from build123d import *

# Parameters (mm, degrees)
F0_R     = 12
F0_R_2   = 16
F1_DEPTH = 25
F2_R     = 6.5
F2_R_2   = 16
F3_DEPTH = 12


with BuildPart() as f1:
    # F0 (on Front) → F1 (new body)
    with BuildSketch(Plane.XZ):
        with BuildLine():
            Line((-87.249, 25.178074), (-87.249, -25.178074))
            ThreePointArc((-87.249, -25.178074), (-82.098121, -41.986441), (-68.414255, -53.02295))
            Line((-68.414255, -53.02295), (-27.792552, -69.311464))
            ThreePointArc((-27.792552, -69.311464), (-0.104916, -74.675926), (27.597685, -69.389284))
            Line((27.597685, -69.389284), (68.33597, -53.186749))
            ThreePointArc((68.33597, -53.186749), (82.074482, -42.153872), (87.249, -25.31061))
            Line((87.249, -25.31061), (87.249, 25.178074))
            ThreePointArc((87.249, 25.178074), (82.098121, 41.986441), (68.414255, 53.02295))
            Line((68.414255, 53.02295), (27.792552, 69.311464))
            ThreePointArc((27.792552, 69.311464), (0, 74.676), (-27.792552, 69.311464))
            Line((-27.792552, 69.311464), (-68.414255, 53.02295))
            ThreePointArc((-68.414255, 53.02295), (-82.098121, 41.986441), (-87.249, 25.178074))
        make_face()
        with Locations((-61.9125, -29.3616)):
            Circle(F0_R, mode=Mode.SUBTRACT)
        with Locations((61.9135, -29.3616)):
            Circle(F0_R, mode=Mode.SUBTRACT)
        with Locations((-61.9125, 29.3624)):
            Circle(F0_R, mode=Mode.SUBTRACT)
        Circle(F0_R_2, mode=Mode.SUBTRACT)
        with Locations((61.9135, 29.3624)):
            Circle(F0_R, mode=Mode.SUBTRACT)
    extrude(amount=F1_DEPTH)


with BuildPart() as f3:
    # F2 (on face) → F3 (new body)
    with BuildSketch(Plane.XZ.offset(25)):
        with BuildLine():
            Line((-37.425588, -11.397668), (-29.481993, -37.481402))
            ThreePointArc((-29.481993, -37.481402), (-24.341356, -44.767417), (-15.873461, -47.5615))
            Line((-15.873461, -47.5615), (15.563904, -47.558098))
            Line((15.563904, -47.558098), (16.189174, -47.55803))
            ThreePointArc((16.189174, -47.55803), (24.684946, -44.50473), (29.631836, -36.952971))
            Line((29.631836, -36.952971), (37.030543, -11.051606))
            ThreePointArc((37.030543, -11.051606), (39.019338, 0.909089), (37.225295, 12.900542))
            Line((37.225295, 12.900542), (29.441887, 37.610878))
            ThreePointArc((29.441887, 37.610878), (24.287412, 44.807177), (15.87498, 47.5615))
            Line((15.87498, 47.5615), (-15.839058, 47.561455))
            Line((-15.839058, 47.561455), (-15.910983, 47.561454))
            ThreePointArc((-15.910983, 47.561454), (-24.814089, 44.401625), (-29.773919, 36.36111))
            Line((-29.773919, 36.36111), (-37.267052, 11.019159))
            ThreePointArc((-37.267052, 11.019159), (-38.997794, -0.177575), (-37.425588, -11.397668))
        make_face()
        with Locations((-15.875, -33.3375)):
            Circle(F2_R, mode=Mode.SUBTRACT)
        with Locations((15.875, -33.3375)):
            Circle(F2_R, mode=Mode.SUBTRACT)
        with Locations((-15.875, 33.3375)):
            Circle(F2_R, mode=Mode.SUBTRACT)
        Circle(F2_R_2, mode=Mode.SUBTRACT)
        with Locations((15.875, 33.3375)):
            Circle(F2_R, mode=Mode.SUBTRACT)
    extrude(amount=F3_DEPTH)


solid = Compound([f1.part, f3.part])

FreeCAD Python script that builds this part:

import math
import FreeCAD as App
import Part
import Sketcher

doc = App.newDocument("Part")
body = doc.addObject("PartDesign::Body", "Body")

sketch1 = body.newObject("Sketcher::SketchObject", "Sketch")
sketch1.AttachmentSupport = (doc.getObject("XZ_Plane"), [""])
sketch1.MapMode = "FlatFace"
sketch1.addGeometry([
    Part.LineSegment(App.Vector(-87, 25, 0), App.Vector(-87, -25, 0)),
    Part.ArcOfCircle(Part.Circle(App.Vector(-57, -25, 0), App.Vector(0, 0, 1), 30), math.radians(180), math.radians(248)),
    Part.LineSegment(App.Vector(-68, -53, 0), App.Vector(-28, -69, 0)),
    Part.ArcOfCircle(Part.Circle(App.Vector(0, 0, 0), App.Vector(0, 0, 1), 75), math.radians(-112), math.radians(-68)),
    Part.LineSegment(App.Vector(28, -69, 0), App.Vector(68, -53, 0)),
    Part.ArcOfCircle(Part.Circle(App.Vector(57, -25, 0), App.Vector(0, 0, 1), 30), math.radians(-68), math.radians(0)),
    Part.LineSegment(App.Vector(87, -25, 0), App.Vector(87, 25, 0)),
    Part.ArcOfCircle(Part.Circle(App.Vector(57, 25, 0), App.Vector(0, 0, 1), 30), math.radians(0), math.radians(68)),
    Part.LineSegment(App.Vector(68, 53, 0), App.Vector(28, 69, 0)),
    Part.ArcOfCircle(Part.Circle(App.Vector(0, 0, 0), App.Vector(0, 0, 1), 75), math.radians(68), math.radians(112)),
    Part.LineSegment(App.Vector(-28, 69, 0), App.Vector(-68, 53, 0)),
    Part.ArcOfCircle(Part.Circle(App.Vector(-57, 25, 0), App.Vector(0, 0, 1), 30), math.radians(112), math.radians(180)),
    Part.Circle(App.Vector(-62, -29, 0), App.Vector(0, 0, 1), 12),
    Part.Circle(App.Vector(0, 0, 0), App.Vector(0, 0, 1), 16),
    Part.Circle(App.Vector(62, -29, 0), App.Vector(0, 0, 1), 12),
    Part.Circle(App.Vector(-62, 29, 0), App.Vector(0, 0, 1), 12),
    Part.Circle(App.Vector(62, 29, 0), App.Vector(0, 0, 1), 12),
], False)
sketch1.addConstraint([
    Sketcher.Constraint("Tangent", 0, 2, 1, 1),
    Sketcher.Constraint("Tangent", 1, 2, 2, 1),
    Sketcher.Constraint("Tangent", 2, 2, 3, 1),
    Sketcher.Constraint("Tangent", 3, 2, 4, 1),
    Sketcher.Constraint("Tangent", 4, 2, 5, 1),
    Sketcher.Constraint("Tangent", 5, 2, 6, 1),
    Sketcher.Constraint("Tangent", 6, 2, 7, 1),
    Sketcher.Constraint("Tangent", 7, 2, 8, 1),
    Sketcher.Constraint("Tangent", 8, 2, 9, 1),
    Sketcher.Constraint("Tangent", 9, 2, 10, 1),
    Sketcher.Constraint("Tangent", 10, 2, 11, 1),
    Sketcher.Constraint("Tangent", 11, 2, 0, 1),
    Sketcher.Constraint("Vertical", 0),
    Sketcher.Constraint("Vertical", 6),
    Sketcher.Constraint("Coincident", 3, 3, -1, 1),
    Sketcher.Constraint("Coincident", 9, 3, -1, 1),
    Sketcher.Constraint("Coincident", 13, 3, -1, 1),
    Sketcher.Constraint("Equal", 1, 5),
    Sketcher.Constraint("Equal", 5, 7),
    Sketcher.Constraint("Equal", 7, 11),
    Sketcher.Constraint("Equal", 12, 14),
    Sketcher.Constraint("Equal", 14, 15),
    Sketcher.Constraint("Equal", 15, 16),
    Sketcher.Constraint("Symmetric", 1, 3, 7, 3, -1, 1),
    Sketcher.Constraint("Symmetric", 2, 2, 9, 2, -1),
    Sketcher.Constraint("Horizontal", 12, 3, 14, 3),
    Sketcher.Constraint("Horizontal", 15, 3, 16, 3),
    Sketcher.Constraint("Vertical", 12, 3, 15, 3),
    Sketcher.Constraint("Vertical", 14, 3, 16, 3),
    Sketcher.Constraint("Diameter", 12, 24.0),
    Sketcher.Constraint("Diameter", 13, 32.0),
    Sketcher.Constraint("Radius", 1, 30.000001),
    Sketcher.Constraint("Radius", 9, 74.676001),
    Sketcher.Constraint("DistanceX", 1, 3, -1, 1, 57.248999),
    Sketcher.Constraint("DistanceY", 12, 3, 15, 3, 58.724),
    Sketcher.Constraint("DistanceX", 12, 3, -1, 1, 61.9125),
    Sketcher.Constraint("DistanceY", 12, 3, -1, 1, 29.3616),
    Sketcher.Constraint("DistanceX", -1, 1, 14, 3, 61.9135),
    Sketcher.Constraint("DistanceY", 0, 2, 0, 1, 50.356148),
    Sketcher.Constraint("DistanceY", 6, 1, 6, 2, 50.488684),
])
pad1 = body.newObject("PartDesign::Pad", "Pad")
pad1.Profile = sketch1
pad1.Length = 25
body2 = doc.addObject("PartDesign::Body", "Body001")

sketch2 = body2.newObject("Sketcher::SketchObject", "Sketch001")
sketch2.AttachmentSupport = (doc.getObject("XZ_Plane001"), [""])
sketch2.MapMode = "FlatFace"
sketch2.AttachmentOffset = App.Placement(App.Vector(0, 0, 25), App.Rotation())
sketch2.addGeometry([
    Part.LineSegment(App.Vector(-37.425588, -11.397668, 0), App.Vector(-29.481993, -37.481402, 0)),
    Part.ArcOfCircle(Part.Circle(App.Vector(-15.875001, -33.337501, 0), App.Vector(0, 0, 1), 14.223999), math.radians(-163.062303), math.radians(-89.993798)),
    Part.LineSegment(App.Vector(-15.873461, -47.5615, 0), App.Vector(15.563904, -47.558098, 0)),
    Part.LineSegment(App.Vector(15.563904, -47.558098, 0), App.Vector(16.189174, -47.55803, 0)),
    Part.ArcOfCircle(Part.Circle(App.Vector(15.875, -33.3375, 0), App.Vector(0, 0, 1), 14.224), math.radians(-88.73437), math.radians(-14.725062)),
    Part.LineSegment(App.Vector(29.631836, -36.952971, 0), App.Vector(37.030543, -11.051606, 0)),
    Part.ArcOfCircle(Part.Circle(App.Vector(0.158616, 1.225061, 0), App.Vector(0, 0, 1), 38.862006), math.radians(-18.415402), math.radians(17.483692)),
    Part.LineSegment(App.Vector(37.225295, 12.900542, 0), App.Vector(29.441887, 37.610878, 0)),
    Part.ArcOfCircle(Part.Circle(App.Vector(15.874999, 33.337498, 0), App.Vector(0, 0, 1), 14.224002), math.radians(17.483698), math.radians(90.000076)),
    Part.LineSegment(App.Vector(15.87498, 47.5615, 0), App.Vector(-15.839058, 47.561455, 0)),
    Part.LineSegment(App.Vector(-15.839058, 47.561455, 0), App.Vector(-15.910983, 47.561454, 0)),
    Part.ArcOfCircle(Part.Circle(App.Vector(-15.875001, 33.337501, 0), App.Vector(0, 0, 1), 14.223998), math.radians(90.144939), math.radians(167.726941)),
    Part.LineSegment(App.Vector(-29.773919, 36.36111, 0), App.Vector(-37.267052, 11.019159, 0)),
    Part.ArcOfCircle(Part.Circle(App.Vector(-0.136783, -0.452407, 0), App.Vector(0, 0, 1), 38.861983), math.radians(162.831227), math.radians(196.358373)),
    Part.Circle(App.Vector(-15.875, -33.3375, 0), App.Vector(0, 0, 1), 6.5),
    Part.Circle(App.Vector(15.875, -33.3375, 0), App.Vector(0, 0, 1), 6.5),
    Part.Circle(App.Vector(-15.875, 33.3375, 0), App.Vector(0, 0, 1), 6.5),
    Part.Circle(App.Vector(0, 0, 0), App.Vector(0, 0, 1), 16),
    Part.Circle(App.Vector(15.875, 33.3375, 0), App.Vector(0, 0, 1), 6.5),
], False)
sketch2.addConstraint([
    Sketcher.Constraint("Coincident", 0, 2, 1, 1),
    Sketcher.Constraint("Coincident", 1, 2, 2, 1),
    Sketcher.Constraint("Coincident", 2, 2, 3, 1),
    Sketcher.Constraint("Coincident", 3, 2, 4, 1),
    Sketcher.Constraint("Coincident", 4, 2, 5, 1),
    Sketcher.Constraint("Coincident", 5, 2, 6, 1),
    Sketcher.Constraint("Coincident", 6, 2, 7, 1),
    Sketcher.Constraint("Coincident", 7, 2, 8, 1),
    Sketcher.Constraint("Coincident", 8, 2, 9, 1),
    Sketcher.Constraint("Coincident", 9, 2, 10, 1),
    Sketcher.Constraint("Coincident", 10, 2, 11, 1),
    Sketcher.Constraint("Coincident", 11, 2, 12, 1),
    Sketcher.Constraint("Coincident", 12, 2, 13, 1),
    Sketcher.Constraint("Coincident", 13, 2, 0, 1),
    Sketcher.Constraint("Horizontal", 10),
    Sketcher.Constraint("Coincident", 17, 3, -1, 1),
    Sketcher.Constraint("Coincident", 14, 3, 1, 3),
    Sketcher.Constraint("Coincident", 15, 3, 4, 3),
    Sketcher.Constraint("Coincident", 16, 3, 11, 3),
    Sketcher.Constraint("Coincident", 18, 3, 8, 3),
    Sketcher.Constraint("Diameter", 14, 13.0),
    Sketcher.Constraint("Diameter", 15, 13.0),
    Sketcher.Constraint("Diameter", 16, 13.0),
    Sketcher.Constraint("Diameter", 17, 32.0),
    Sketcher.Constraint("Diameter", 18, 13.0),
    Sketcher.Constraint("Radius", 1, 14.223999),
    Sketcher.Constraint("Radius", 4, 14.224),
    Sketcher.Constraint("Radius", 11, 14.223998),
    Sketcher.Constraint("DistanceX", 1, 3, 4, 3, 31.750001),
    Sketcher.Constraint("DistanceX", 1, 3, 8, 3, 31.75),
    Sketcher.Constraint("DistanceX", 11, 3, 8, 3, 31.75),
    Sketcher.Constraint("DistanceX", 1, 3, -1, 1, 15.875001),
    Sketcher.Constraint("Radius", 6, 38.862006),
    Sketcher.Constraint("Radius", 8, 14.224002),
    Sketcher.Constraint("Radius", 13, 38.861983),
    Sketcher.Constraint("DistanceY", 4, 3, 8, 3, 66.674998),
    Sketcher.Constraint("DistanceY", 1, 3, 8, 3, 66.674999),
    Sketcher.Constraint("DistanceY", 1, 3, 11, 3, 66.675002),
    Sketcher.Constraint("DistanceY", 1, 3, -1, 1, 33.337501),
    Sketcher.Constraint("DistanceX", 13, 3, 6, 3, 0.295399),
    Sketcher.Constraint("DistanceY", 0, 2, 1, 3, 4.143901),
    Sketcher.Constraint("DistanceY", 2, 2, 15, 3, 14.220598),
    Sketcher.Constraint("DistanceY", 5, 2, 13, 3, 10.599199),
    Sketcher.Constraint("DistanceY", 6, 3, 12, 2, 9.794098),
    Sketcher.Constraint("Distance", 3, 0.62527),
    Sketcher.Constraint("Distance", 9, 31.714038),
    Sketcher.Constraint("Distance", 12, 26.426531),
    Sketcher.Constraint("DistanceX", 10, 2, 10, 1, 0.071925),
    Sketcher.Constraint("DistanceY", -1, 1, 6, 3, 1.225061),
    Sketcher.Constraint("DistanceX", 1, 2, -1, 1, 15.873461),
    Sketcher.Constraint("DistanceY", 3, 2, -1, 1, 47.55803),
    Sketcher.Constraint("DistanceY", 4, 2, -1, 1, 36.952971),
    Sketcher.Constraint("DistanceX", -1, 1, 8, 2, 15.87498),
    Sketcher.Constraint("DistanceX", 11, 2, -1, 1, 29.773919),
    Sketcher.Constraint("DistanceX", 13, 2, -1, 1, 37.425588),
    Sketcher.Constraint("DistanceY", 13, 2, -1, 1, 11.397668),
    Sketcher.Constraint("DistanceY", 5, 2, 6, 2, 23.952148),
    Sketcher.Constraint("DistanceY", 18, 3, 7, 2, 4.273378),
])
pad2 = body2.newObject("PartDesign::Pad", "Pad001")
pad2.Profile = sketch2
pad2.Length = 12

doc.recompute()
